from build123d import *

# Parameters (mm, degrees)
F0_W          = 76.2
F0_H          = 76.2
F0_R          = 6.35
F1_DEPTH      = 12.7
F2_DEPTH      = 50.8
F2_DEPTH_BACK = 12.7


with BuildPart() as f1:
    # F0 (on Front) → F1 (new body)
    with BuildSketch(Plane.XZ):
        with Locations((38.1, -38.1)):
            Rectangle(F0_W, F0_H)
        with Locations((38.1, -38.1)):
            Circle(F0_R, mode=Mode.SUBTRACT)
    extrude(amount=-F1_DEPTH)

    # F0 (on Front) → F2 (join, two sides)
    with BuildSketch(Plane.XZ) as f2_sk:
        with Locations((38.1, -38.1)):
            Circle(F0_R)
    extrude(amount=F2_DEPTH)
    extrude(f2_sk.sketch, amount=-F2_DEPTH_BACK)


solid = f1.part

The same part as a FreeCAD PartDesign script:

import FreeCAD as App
import Part
import Sketcher

V = App.Vector
Q = App.Units.Quantity

doc = App.newDocument("Part")
params = doc.addObject("Spreadsheet::Sheet", "Params")
for row, (alias, value) in enumerate([
    ("sketch1_diameter", "0.5 in"),
    ("sketch1_width", "3 in"),
    ("pad1_length", "0.5 in"),
    ("sketch2_diameter", "0.5 in"),
    ("pad2_length", "2 in"),
    ("pad2_length2", "0.5 in"),
], start=1):
    params.set(f"A{row}", alias)
    params.set(f"B{row}", "=" + value)
    params.setAlias(f"B{row}", alias)

body = doc.addObject("PartDesign::Body", "Body")

sketch1 = body.newObject("Sketcher::SketchObject", "Sketch")
sketch1.AttachmentSupport = (doc.getObject("XZ_Plane"), [""])
sketch1.MapMode = "FlatFace"
sketch1.addGeometry([
    Part.LineSegment(V(0, 0, 0), V(0, -76, 0)),
    Part.LineSegment(V(0, -76, 0), V(76, -76, 0)),
    Part.LineSegment(V(76, -76, 0), V(76, 0, 0)),
    Part.LineSegment(V(76, 0, 0), V(0, 0, 0)),
    Part.Circle(V(38, -38, 0), V(0, 0, 1), 6),
], False)
sketch1.addConstraint([
    Sketcher.Constraint("Coincident", 0, 2, 1, 1),
    Sketcher.Constraint("Coincident", 1, 2, 2, 1),
    Sketcher.Constraint("Coincident", 2, 2, 3, 1),
    Sketcher.Constraint("Coincident", 3, 2, 0, 1),
    Sketcher.Constraint("Vertical", 0),
    Sketcher.Constraint("Horizontal", 1),
    Sketcher.Constraint("Vertical", 2),
    Sketcher.Constraint("Horizontal", 3),
    Sketcher.Constraint("Coincident", 3, 2, -1, 1),
    Sketcher.Constraint("Equal", 3, 0),
    Sketcher.Constraint("Diameter", 4, Q("0.5 in")),
    Sketcher.Constraint("DistanceX", 1, 1, 1, 2, Q("3 in")),
    Sketcher.Constraint("DistanceX", -1, 1, 4, 3, Q("1.5 in")),
    Sketcher.Constraint("DistanceY", 4, 3, -1, 1, Q("1.5 in")),
])
sketch1.setExpression("Constraints[10]", "Params.sketch1_diameter")
sketch1.setExpression("Constraints[11]", "Params.sketch1_width")
pad1 = body.newObject("PartDesign::Pad", "Pad")
pad1.Profile = sketch1
pad1.setExpression("Length", "Params.pad1_length")
pad1.Reversed = True

sketch2 = body.newObject("Sketcher::SketchObject", "Sketch001")
sketch2.AttachmentSupport = (doc.getObject("XZ_Plane"), [""])
sketch2.MapMode = "FlatFace"
sketch2.addGeometry(Part.Circle(V(38, -38, 0), V(0, 0, 1), 6), False)
sketch2.addConstraint([
    Sketcher.Constraint("Diameter", 0, Q("0.5 in")),
    Sketcher.Constraint("DistanceX", -1, 1, 0, 3, Q("1.5 in")),
    Sketcher.Constraint("DistanceY", 0, 3, -1, 1, Q("1.5 in")),
])
sketch2.setExpression("Constraints[0]", "Params.sketch2_diameter")
pad2 = body.newObject("PartDesign::Pad", "Pad001")
pad2.Profile = sketch2
pad2.Type = "TwoLengths"
pad2.setExpression("Length", "Params.pad2_length")
pad2.setExpression("Length2", "Params.pad2_length2")

doc.recompute()
